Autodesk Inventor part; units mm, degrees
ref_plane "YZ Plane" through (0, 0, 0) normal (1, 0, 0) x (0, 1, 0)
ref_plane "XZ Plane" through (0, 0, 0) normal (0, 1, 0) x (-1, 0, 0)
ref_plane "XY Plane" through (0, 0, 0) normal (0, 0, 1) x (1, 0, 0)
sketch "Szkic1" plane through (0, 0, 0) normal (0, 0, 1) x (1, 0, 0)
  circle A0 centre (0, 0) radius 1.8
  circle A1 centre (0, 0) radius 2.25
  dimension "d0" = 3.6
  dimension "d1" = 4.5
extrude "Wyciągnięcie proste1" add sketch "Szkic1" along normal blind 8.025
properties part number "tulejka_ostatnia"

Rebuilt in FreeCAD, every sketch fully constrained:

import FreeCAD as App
import Part
import Sketcher
Q = App.Units.Quantity

doc = App.newDocument("Part")
body = doc.addObject("PartDesign::Body", "Body")

# Sketch on XY plane
sketch1 = body.newObject("Sketcher::SketchObject", "Sketch")
sketch1.AttachmentSupport = (doc.getObject("XY_Plane"), [""])
sketch1.MapMode = "FlatFace"
sketch1.addGeometry(Part.Circle(App.Vector(0, 0, 0), App.Vector(0, 0, 1), 2.25), False)
sketch1.addGeometry(Part.Circle(App.Vector(0, 0, 0), App.Vector(0, 0, 1), 1.8), False)
sketch1.addConstraint(Sketcher.Constraint("Coincident", 0, 3, -1, 1))
sketch1.addConstraint(Sketcher.Constraint("Coincident", 1, 3, -1, 1))
sketch1.addConstraint(Sketcher.Constraint("Diameter", 0, Q("4.5 mm")))
sketch1.addConstraint(Sketcher.Constraint("Diameter", 1, Q("3.6 mm")))
pad1 = body.newObject("PartDesign::Pad", "Pad")
pad1.Profile = sketch1
pad1.Length = 8.025

doc.recompute()
